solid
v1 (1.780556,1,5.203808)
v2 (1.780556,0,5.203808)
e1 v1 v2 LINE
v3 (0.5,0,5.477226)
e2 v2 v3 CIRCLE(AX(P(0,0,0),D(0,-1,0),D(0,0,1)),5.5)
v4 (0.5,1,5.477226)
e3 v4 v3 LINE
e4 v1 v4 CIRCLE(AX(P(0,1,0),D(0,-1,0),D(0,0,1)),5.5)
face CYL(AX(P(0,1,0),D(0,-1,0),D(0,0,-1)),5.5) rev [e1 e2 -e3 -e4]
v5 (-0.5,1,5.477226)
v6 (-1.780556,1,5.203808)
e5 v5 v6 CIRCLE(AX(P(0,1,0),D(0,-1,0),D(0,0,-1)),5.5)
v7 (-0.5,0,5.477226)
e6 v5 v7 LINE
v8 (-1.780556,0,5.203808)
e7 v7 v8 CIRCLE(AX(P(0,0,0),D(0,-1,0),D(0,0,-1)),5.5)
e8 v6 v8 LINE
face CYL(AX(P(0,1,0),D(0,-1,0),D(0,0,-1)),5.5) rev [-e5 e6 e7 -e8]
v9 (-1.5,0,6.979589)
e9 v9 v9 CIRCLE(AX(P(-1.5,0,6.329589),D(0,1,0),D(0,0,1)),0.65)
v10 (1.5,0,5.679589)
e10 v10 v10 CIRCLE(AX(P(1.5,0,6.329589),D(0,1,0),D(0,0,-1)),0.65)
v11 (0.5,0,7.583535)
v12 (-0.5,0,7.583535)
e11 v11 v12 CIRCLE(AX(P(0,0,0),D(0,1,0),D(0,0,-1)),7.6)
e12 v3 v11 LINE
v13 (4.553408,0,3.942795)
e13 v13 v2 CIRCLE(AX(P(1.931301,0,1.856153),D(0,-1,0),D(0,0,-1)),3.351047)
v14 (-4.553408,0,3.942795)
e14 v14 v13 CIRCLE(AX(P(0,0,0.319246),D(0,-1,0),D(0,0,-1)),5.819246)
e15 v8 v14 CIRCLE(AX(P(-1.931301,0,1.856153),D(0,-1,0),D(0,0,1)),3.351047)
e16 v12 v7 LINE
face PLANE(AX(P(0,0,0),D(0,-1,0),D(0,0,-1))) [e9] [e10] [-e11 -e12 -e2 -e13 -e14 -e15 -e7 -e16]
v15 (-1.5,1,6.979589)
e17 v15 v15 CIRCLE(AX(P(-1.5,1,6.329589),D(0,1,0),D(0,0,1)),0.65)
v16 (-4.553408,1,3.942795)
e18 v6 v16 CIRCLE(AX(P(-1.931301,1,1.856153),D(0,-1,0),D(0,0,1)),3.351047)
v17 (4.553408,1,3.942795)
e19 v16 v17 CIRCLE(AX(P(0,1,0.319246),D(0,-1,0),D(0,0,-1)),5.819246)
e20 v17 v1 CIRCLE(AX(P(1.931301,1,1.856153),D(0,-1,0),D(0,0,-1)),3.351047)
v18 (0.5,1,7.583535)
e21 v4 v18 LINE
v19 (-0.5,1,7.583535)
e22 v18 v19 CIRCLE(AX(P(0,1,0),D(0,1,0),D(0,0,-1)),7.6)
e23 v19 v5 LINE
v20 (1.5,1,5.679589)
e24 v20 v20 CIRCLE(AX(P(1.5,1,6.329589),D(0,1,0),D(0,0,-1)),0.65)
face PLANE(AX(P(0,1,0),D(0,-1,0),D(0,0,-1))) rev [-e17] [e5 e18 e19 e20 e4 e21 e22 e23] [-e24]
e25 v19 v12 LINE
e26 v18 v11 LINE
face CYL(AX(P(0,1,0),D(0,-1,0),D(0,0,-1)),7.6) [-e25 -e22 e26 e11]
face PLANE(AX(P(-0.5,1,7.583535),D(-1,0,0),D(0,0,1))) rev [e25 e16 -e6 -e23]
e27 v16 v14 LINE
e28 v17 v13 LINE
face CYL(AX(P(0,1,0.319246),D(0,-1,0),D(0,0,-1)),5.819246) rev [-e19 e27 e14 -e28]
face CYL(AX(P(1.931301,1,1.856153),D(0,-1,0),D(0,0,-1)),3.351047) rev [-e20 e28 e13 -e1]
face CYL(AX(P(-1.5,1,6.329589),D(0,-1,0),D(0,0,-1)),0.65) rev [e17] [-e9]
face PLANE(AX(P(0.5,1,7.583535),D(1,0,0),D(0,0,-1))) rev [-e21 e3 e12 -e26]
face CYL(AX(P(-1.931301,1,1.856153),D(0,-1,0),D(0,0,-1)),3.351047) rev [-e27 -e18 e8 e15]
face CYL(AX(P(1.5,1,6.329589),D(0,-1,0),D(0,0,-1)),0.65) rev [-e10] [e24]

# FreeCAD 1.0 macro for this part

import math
import FreeCAD as App
import Part
import Sketcher
from FreeCAD import Vector

doc = App.newDocument("Part")
body = doc.addObject("PartDesign::Body", "Body")

sketch1 = body.newObject("Sketcher::SketchObject", "Sketch")
sketch1.AttachmentSupport = (doc.getObject("XZ_Plane"), [""])
sketch1.MapMode = "FlatFace"
sketch1.addGeometry(Part.LineSegment(Vector(-0.5, 7.6, 0), Vector(-0.5, 5.5, 0)), False)
sketch1.addGeometry(Part.ArcOfCircle(Part.Circle(Vector(0, 0, 0), Vector(0, 0, 1), 5.5), math.radians(95.22), math.radians(108.89)), False)
sketch1.addGeometry(Part.ArcOfCircle(Part.Circle(Vector(-1.9, 1.9, 0), Vector(0, 0, 1), 3.4), math.radians(87), math.radians(141)), False)
sketch1.addGeometry(Part.ArcOfCircle(Part.Circle(Vector(0, 0.3, 0), Vector(0, 0, 1), 5.8), math.radians(141), math.radians(399)), False)
sketch1.addGeometry(Part.ArcOfCircle(Part.Circle(Vector(1.9, 1.9, 0), Vector(0, 0, 1), 3.4), math.radians(39), math.radians(93)), False)
sketch1.addGeometry(Part.ArcOfCircle(Part.Circle(Vector(0, 0, 0), Vector(0, 0, 1), 5.5), math.radians(71.11), math.radians(84.78)), False)
sketch1.addGeometry(Part.LineSegment(Vector(0.5, 5.5, 0), Vector(0.5, 7.6, 0)), False)
sketch1.addGeometry(Part.ArcOfCircle(Part.Circle(Vector(0, 0, 0), Vector(0, 0, 1), 7.6), math.radians(94), math.radians(446)), False)
sketch1.addGeometry(Part.Circle(Vector(-1.5, 6.3, 0), Vector(0, 0, 1), 0.7), False)
sketch1.addGeometry(Part.Circle(Vector(1.5, 6.3, 0), Vector(0, 0, 1), 0.7), False)
sketch1.addConstraint(Sketcher.Constraint("Coincident", 0, 2, 1, 1))
sketch1.addConstraint(Sketcher.Constraint("Coincident", 1, 2, 2, 1))
sketch1.addConstraint(Sketcher.Constraint("Tangent", 2, 2, 3, 1))
sketch1.addConstraint(Sketcher.Constraint("Tangent", 3, 2, 4, 1))
sketch1.addConstraint(Sketcher.Constraint("Coincident", 4, 2, 5, 1))
sketch1.addConstraint(Sketcher.Constraint("Coincident", 5, 2, 6, 1))
sketch1.addConstraint(Sketcher.Constraint("Coincident", 6, 2, 7, 2))
sketch1.addConstraint(Sketcher.Constraint("Coincident", 7, 1, 0, 1))
sketch1.addConstraint(Sketcher.Constraint("Vertical", 0))
sketch1.addConstraint(Sketcher.Constraint("Vertical", 6))
sketch1.addConstraint(Sketcher.Constraint("Coincident", 1, 3, -1, 1))
sketch1.addConstraint(Sketcher.Constraint("Coincident", 5, 3, -1, 1))
sketch1.addConstraint(Sketcher.Constraint("Coincident", 7, 3, -1, 1))
sketch1.addConstraint(Sketcher.Constraint("Equal", 2, 4))
sketch1.addConstraint(Sketcher.Constraint("Equal", 1, 5))
sketch1.addConstraint(Sketcher.Constraint("Equal", 8, 9))
sketch1.addConstraint(Sketcher.Constraint("Symmetric", 2, 3, 4, 3, -2))
sketch1.addConstraint(Sketcher.Constraint("Symmetric", 8, 3, 9, 3, -2))
sketch1.addConstraint(Sketcher.Constraint("Horizontal", 0, 2, 5, 2))
sketch1.addConstraint(Sketcher.Constraint("Diameter", 8, 1.3))
sketch1.addConstraint(Sketcher.Constraint("Radius", 1, 5.5))
sketch1.addConstraint(Sketcher.Constraint("Radius", 7, 7.6))
sketch1.addConstraint(Sketcher.Constraint("DistanceX", 8, 3, 9, 3, 3.0))
sketch1.addConstraint(Sketcher.Constraint("DistanceX", 8, 3, 0, 2, 1.0))
sketch1.addConstraint(Sketcher.Constraint("Radius", 2, 3.351047))
sketch1.addConstraint(Sketcher.Constraint("Radius", 3, 5.819246))
sketch1.addConstraint(Sketcher.Constraint("DistanceX", 2, 3, -1, 1, 1.931301))
sketch1.addConstraint(Sketcher.Constraint("DistanceY", -1, 1, 8, 3, 6.329589))
sketch1.addConstraint(Sketcher.Constraint("DistanceY", -1, 1, 1, 2, 5.203808))
pad1 = body.newObject("PartDesign::Pad", "Pad")
pad1.Profile = sketch1
pad1.Length = 1
pad1.Reversed = True

doc.recompute()
